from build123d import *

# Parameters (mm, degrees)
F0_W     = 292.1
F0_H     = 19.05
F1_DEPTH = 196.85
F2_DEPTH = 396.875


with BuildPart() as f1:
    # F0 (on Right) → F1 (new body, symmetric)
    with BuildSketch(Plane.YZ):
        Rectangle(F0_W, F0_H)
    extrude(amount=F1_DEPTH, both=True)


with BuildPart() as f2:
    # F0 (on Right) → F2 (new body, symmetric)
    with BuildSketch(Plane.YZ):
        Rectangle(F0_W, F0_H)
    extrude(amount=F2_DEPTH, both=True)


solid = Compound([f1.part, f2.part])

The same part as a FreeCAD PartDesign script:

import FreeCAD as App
import Part
import Sketcher

V = App.Vector
Q = App.Units.Quantity


def add_polygon(sketch, points):
    """Adds a closed chain of lines whose ends are joined by coincident constraints."""
    first, n = sketch.GeometryCount, len(points)
    for a, b in zip(points, points[1:] + points[:1]):
        sketch.addGeometry(Part.LineSegment(App.Vector(*a, 0), App.Vector(*b, 0)), False)
    for i in range(n):
        sketch.addConstraint(Sketcher.Constraint("Coincident", first + i, 2, first + (i + 1) % n, 1))

doc = App.newDocument("Part")
body = doc.addObject("PartDesign::Body", "Body")

# Sketch on YZ plane
sketch1 = body.newObject("Sketcher::SketchObject", "Sketch")
sketch1.AttachmentSupport = (doc.getObject("YZ_Plane"), [""])
sketch1.MapMode = "FlatFace"
add_polygon(sketch1, [(-146, 10), (-146, -10), (146, -10), (146, 10)])  # lines 0-3
sketch1.addConstraint(Sketcher.Constraint("Vertical", 0))
sketch1.addConstraint(Sketcher.Constraint("Horizontal", 1))
sketch1.addConstraint(Sketcher.Constraint("Vertical", 2))
sketch1.addConstraint(Sketcher.Constraint("Horizontal", 3))
sketch1.addConstraint(Sketcher.Constraint("Symmetric", 0, 2, 2, 2, -1, 1))
sketch1.addConstraint(Sketcher.Constraint("DistanceX", 1, 1, 1, 2, Q("11.5 in")))
sketch1.addConstraint(Sketcher.Constraint("DistanceY", 0, 2, 0, 1, Q("0.75 in")))
pad1 = body.newObject("PartDesign::Pad", "Pad")
pad1.Profile = sketch1
pad1.Length = Q("15.5 in")
pad1.Midplane = True
body2 = doc.addObject("PartDesign::Body", "Body001")

# Sketch on YZ plane
sketch2 = body2.newObject("Sketcher::SketchObject", "Sketch001")
sketch2.AttachmentSupport = (doc.getObject("YZ_Plane001"), [""])
sketch2.MapMode = "FlatFace"
add_polygon(sketch2, [(-146, 10), (-146, -10), (146, -10), (146, 10)])  # lines 0-3
sketch2.addConstraint(Sketcher.Constraint("Vertical", 0))
sketch2.addConstraint(Sketcher.Constraint("Horizontal", 1))
sketch2.addConstraint(Sketcher.Constraint("Vertical", 2))
sketch2.addConstraint(Sketcher.Constraint("Horizontal", 3))
sketch2.addConstraint(Sketcher.Constraint("Symmetric", 0, 2, 2, 2, -1, 1))
sketch2.addConstraint(Sketcher.Constraint("DistanceX", 1, 1, 1, 2, Q("11.5 in")))
sketch2.addConstraint(Sketcher.Constraint("DistanceY", 0, 2, 0, 1, Q("0.75 in")))
pad2 = body2.newObject("PartDesign::Pad", "Pad001")
pad2.Profile = sketch2
pad2.Length = Q("31.25 in")
pad2.Midplane = True

doc.recompute()
